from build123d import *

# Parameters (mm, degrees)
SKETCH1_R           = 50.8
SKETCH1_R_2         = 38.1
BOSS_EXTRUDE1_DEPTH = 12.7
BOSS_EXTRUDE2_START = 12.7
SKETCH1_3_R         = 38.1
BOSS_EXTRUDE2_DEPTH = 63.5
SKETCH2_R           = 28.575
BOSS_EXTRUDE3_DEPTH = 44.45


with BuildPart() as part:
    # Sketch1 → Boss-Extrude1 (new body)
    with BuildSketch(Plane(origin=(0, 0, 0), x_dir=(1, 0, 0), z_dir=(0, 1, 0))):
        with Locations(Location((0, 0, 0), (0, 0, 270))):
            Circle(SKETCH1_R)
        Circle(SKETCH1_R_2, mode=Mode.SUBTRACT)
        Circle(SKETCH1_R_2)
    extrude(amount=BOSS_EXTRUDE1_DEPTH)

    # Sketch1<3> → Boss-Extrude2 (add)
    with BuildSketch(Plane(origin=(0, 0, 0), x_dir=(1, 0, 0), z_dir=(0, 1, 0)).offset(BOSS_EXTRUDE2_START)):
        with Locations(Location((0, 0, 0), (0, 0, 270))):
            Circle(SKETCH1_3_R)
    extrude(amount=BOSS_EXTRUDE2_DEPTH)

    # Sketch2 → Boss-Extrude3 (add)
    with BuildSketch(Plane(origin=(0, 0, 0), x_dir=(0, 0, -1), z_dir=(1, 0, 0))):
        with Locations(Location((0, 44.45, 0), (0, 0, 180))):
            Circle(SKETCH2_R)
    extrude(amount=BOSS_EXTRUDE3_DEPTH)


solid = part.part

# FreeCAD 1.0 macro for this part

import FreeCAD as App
import Part
import Sketcher
from FreeCAD import Vector
Q = App.Units.Quantity

doc = App.newDocument("Part")
body = doc.addObject("PartDesign::Body", "Body")

# Sketch on XZ plane
sketch1 = doc.addObject("Sketcher::SketchObject", "Sketch")
body.addObject(sketch1)
sketch1.AttachmentSupport = (doc.XZ_Plane, [""])
sketch1.MapMode = "FlatFace"
sketch1.addGeometry(Part.Circle(Vector(0, 0, 0), Vector(0, 0, 1), 50.8), False)
sketch1.addConstraint(Sketcher.Constraint("Coincident", 0, 3, -1, 1))
sketch1.addConstraint(Sketcher.Constraint("Diameter", 0, Q("4 in")))
pad1 = doc.addObject("PartDesign::Pad", "Pad")
body.addObject(pad1)
pad1.Profile = sketch1
pad1.Length = Q("0.5 in")
pad1.Reversed = True

# Sketch on XZ plane
sketch2 = doc.addObject("Sketcher::SketchObject", "Sketch001")
body.addObject(sketch2)
sketch2.AttachmentSupport = (doc.XZ_Plane, [""])
sketch2.MapMode = "FlatFace"
sketch2.AttachmentOffset = App.Placement(Vector(0, 0, -0.5 * 25.4), App.Rotation())
sketch2.addGeometry(Part.Circle(Vector(0, 0, 0), Vector(0, 0, 1), 38.1), False)
sketch2.addConstraint(Sketcher.Constraint("Coincident", 0, 3, -1, 1))
sketch2.addConstraint(Sketcher.Constraint("Diameter", 0, Q("3 in")))
pad2 = doc.addObject("PartDesign::Pad", "Pad001")
body.addObject(pad2)
pad2.Profile = sketch2
pad2.Length = Q("2.5 in")
pad2.Reversed = True

# Sketch on YZ plane
sketch3 = doc.addObject("Sketcher::SketchObject", "Sketch002")
body.addObject(sketch3)
sketch3.AttachmentSupport = (doc.YZ_Plane, [""])
sketch3.MapMode = "FlatFace"
sketch3.addGeometry(Part.Circle(Vector(44.45, 0, 0), Vector(0, 0, 1), 28.575), False)
sketch3.addConstraint(Sketcher.Constraint("PointOnObject", 0, 3, -1))
sketch3.addConstraint(Sketcher.Constraint("Diameter", 0, Q("2.25 in")))
sketch3.addConstraint(Sketcher.Constraint("DistanceX", -1, 1, 0, 3, Q("1.75 in")))
pad3 = doc.addObject("PartDesign::Pad", "Pad002")
body.addObject(pad3)
pad3.Profile = sketch3
pad3.Length = Q("1.75 in")

doc.recompute()
